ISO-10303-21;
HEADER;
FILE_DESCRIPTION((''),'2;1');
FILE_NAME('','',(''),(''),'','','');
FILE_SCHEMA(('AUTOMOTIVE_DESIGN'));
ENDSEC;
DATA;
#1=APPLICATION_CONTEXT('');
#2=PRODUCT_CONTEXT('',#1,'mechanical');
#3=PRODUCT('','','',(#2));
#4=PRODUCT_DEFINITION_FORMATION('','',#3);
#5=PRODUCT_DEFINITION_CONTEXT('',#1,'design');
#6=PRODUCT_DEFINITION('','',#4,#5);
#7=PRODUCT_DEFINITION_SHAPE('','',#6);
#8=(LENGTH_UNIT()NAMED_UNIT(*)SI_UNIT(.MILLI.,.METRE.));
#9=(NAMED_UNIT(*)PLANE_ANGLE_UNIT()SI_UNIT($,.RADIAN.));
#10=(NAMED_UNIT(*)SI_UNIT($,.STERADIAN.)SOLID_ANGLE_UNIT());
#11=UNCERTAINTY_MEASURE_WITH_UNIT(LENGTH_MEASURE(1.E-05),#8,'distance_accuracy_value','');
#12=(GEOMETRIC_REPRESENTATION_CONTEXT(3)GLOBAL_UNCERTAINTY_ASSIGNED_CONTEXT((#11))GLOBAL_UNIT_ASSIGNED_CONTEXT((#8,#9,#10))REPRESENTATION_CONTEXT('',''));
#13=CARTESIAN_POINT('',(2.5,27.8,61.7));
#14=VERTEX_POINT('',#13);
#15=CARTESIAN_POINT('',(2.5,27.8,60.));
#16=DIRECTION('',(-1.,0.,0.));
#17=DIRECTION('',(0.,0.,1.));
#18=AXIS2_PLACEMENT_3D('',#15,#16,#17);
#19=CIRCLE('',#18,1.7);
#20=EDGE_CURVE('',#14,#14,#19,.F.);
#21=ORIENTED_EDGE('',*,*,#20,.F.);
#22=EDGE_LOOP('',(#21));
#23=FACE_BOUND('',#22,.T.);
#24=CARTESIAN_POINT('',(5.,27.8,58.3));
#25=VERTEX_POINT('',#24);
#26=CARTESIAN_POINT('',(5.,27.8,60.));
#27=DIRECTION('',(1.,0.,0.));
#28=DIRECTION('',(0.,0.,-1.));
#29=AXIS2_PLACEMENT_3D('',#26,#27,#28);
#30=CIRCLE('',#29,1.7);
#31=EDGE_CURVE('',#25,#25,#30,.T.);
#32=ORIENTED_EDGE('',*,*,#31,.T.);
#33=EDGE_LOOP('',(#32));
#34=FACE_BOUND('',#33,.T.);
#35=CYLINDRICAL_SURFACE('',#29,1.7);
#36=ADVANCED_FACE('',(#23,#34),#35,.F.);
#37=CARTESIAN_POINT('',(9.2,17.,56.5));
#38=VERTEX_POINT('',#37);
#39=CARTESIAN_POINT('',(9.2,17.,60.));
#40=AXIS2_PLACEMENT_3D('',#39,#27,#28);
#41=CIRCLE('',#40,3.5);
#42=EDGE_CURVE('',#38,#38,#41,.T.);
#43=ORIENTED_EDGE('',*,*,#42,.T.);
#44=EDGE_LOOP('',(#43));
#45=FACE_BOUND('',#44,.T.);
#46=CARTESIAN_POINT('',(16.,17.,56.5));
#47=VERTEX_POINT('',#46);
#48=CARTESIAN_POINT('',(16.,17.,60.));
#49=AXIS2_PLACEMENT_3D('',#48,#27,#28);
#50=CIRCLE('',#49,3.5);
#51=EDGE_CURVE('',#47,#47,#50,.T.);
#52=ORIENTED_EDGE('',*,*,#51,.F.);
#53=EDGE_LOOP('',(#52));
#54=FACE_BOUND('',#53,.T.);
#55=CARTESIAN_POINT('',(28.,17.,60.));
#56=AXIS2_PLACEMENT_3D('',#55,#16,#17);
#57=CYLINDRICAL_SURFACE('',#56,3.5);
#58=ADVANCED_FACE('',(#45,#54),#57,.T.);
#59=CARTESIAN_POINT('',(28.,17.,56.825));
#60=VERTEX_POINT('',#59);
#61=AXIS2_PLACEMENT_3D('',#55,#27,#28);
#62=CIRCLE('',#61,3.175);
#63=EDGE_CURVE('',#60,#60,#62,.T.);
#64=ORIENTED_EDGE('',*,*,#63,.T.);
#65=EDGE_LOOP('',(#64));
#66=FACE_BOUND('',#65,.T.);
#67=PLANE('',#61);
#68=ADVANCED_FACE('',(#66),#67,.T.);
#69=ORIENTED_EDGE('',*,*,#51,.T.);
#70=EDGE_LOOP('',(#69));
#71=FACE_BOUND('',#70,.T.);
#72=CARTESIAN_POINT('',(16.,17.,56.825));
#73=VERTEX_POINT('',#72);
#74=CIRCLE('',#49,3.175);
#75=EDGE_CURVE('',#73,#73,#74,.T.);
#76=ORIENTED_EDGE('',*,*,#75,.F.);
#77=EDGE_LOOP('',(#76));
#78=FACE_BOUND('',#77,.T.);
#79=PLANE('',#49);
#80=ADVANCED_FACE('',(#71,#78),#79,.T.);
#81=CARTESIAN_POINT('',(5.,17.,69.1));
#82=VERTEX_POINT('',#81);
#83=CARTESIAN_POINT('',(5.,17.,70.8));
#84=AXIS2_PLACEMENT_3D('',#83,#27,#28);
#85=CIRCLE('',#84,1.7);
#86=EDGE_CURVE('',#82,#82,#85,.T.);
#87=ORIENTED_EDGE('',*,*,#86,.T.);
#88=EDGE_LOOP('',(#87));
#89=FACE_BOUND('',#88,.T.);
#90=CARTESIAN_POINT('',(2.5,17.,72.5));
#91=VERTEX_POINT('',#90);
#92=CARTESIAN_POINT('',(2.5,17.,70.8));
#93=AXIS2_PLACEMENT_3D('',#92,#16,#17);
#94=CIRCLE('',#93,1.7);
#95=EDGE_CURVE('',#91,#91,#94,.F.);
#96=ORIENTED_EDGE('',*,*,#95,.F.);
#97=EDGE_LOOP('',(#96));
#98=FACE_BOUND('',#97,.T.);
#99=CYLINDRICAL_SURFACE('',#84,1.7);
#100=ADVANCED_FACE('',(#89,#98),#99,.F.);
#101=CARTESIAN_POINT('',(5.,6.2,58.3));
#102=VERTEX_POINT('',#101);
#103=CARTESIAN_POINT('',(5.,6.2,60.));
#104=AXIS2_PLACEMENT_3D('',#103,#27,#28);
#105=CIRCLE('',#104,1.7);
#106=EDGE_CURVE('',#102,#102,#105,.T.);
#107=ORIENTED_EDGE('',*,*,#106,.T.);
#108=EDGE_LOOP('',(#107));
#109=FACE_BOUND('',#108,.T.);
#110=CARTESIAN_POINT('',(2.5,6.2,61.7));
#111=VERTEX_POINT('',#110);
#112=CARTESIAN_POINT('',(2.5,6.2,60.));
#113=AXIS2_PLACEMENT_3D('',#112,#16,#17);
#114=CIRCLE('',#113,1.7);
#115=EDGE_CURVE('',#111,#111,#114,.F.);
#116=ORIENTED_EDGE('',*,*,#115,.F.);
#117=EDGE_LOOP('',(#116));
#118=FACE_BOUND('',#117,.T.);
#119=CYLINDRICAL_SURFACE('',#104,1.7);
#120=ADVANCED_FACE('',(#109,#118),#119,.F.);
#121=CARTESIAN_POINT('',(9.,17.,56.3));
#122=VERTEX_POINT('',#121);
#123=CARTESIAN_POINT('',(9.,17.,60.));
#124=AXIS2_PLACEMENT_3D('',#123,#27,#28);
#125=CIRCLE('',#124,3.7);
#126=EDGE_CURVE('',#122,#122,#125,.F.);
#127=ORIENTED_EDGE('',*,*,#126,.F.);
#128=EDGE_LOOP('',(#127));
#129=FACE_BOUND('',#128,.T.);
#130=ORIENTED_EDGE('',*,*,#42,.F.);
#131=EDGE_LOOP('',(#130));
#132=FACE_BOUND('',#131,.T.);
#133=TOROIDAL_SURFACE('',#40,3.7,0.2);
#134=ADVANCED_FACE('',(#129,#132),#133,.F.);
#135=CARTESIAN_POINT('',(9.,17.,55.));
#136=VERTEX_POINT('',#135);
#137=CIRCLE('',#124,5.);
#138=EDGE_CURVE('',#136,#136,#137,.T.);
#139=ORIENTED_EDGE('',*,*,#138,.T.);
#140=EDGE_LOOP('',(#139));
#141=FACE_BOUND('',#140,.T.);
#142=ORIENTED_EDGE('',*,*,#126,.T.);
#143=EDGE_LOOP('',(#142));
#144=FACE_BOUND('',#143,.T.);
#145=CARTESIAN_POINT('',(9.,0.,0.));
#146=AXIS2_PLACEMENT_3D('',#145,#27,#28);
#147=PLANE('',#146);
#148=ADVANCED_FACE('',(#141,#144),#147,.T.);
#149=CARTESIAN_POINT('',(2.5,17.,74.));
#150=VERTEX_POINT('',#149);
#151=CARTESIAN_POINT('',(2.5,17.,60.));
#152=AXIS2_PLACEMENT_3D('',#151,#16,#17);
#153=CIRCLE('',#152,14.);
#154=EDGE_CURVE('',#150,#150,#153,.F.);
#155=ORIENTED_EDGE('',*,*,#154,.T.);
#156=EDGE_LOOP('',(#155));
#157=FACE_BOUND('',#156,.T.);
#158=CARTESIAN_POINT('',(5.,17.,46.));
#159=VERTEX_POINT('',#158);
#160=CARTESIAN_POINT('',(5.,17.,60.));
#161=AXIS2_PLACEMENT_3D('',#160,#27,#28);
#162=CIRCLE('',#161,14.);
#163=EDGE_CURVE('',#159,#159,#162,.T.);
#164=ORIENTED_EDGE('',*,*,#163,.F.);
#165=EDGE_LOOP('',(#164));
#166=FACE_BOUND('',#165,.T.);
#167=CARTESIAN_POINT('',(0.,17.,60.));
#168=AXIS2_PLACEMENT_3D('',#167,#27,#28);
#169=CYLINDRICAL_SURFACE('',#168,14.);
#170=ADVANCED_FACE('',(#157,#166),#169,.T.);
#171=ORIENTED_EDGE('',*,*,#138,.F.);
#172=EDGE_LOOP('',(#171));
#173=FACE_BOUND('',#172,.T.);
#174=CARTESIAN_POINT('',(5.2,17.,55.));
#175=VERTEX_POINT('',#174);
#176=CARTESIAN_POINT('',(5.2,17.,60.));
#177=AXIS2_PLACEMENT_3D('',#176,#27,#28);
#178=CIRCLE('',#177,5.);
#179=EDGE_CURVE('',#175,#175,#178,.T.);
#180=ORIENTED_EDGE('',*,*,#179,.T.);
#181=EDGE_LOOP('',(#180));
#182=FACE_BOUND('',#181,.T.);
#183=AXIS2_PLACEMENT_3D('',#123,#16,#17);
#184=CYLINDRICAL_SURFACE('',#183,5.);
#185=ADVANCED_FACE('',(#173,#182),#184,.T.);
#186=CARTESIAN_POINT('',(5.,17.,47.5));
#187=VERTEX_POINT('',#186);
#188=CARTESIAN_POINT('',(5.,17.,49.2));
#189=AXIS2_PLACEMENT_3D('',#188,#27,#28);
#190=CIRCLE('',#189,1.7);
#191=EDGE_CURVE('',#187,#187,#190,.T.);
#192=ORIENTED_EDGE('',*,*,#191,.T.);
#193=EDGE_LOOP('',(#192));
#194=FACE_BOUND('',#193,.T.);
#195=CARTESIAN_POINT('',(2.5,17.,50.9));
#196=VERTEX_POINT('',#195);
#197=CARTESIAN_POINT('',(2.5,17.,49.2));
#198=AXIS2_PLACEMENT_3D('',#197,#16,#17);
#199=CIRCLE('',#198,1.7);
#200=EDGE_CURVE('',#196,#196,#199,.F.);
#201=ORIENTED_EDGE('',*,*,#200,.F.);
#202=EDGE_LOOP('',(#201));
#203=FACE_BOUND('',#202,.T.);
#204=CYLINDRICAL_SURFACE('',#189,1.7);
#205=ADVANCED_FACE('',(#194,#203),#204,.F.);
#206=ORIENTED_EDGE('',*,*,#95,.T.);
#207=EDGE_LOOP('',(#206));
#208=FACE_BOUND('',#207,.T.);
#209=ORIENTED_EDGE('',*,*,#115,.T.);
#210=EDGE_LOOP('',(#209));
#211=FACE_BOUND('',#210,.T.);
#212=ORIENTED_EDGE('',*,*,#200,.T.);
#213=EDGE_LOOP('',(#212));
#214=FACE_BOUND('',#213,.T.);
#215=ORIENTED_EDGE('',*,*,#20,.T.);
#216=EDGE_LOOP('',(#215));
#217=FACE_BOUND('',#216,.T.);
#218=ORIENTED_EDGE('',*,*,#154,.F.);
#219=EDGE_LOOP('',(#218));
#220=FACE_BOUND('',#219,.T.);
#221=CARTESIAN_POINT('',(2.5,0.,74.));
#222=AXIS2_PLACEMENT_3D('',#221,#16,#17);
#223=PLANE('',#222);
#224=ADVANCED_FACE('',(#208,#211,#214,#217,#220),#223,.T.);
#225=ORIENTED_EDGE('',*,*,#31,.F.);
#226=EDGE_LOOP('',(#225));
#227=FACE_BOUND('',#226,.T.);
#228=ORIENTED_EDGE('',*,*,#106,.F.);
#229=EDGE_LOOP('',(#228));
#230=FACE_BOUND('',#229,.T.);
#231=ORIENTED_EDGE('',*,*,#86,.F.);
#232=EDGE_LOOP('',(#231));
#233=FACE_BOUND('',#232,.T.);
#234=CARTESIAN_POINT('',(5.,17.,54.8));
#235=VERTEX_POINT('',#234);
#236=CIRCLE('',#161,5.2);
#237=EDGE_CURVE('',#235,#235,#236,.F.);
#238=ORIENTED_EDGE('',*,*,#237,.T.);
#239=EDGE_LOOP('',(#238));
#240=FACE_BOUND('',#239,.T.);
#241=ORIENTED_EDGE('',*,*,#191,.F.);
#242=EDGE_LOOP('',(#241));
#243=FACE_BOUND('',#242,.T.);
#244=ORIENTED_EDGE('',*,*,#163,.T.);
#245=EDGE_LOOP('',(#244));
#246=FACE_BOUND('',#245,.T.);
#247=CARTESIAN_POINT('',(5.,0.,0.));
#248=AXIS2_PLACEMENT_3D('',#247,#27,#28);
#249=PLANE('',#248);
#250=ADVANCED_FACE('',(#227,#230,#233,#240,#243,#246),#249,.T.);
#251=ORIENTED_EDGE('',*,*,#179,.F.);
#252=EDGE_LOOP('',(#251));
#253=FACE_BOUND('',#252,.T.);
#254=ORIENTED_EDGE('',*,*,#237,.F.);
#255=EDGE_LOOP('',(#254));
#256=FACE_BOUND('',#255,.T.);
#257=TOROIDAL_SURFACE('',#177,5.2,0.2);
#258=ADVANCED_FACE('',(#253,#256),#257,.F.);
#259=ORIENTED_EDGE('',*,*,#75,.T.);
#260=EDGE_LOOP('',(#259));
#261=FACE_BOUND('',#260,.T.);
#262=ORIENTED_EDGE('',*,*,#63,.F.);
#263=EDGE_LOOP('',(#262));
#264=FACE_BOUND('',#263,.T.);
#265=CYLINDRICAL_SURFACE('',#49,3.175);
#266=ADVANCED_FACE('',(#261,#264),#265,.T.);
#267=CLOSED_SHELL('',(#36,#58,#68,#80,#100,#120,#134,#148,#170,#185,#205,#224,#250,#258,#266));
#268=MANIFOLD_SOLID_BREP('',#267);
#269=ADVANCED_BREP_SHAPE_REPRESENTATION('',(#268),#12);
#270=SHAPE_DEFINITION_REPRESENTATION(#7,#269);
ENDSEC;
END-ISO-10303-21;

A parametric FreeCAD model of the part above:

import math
import FreeCAD as App
import Part
import Sketcher


def edges_at(feature, points):
    """Names of the edges that pass closest to the given points."""
    edges = feature.Shape.Edges
    near = lambda p: min(range(len(edges)), key=lambda i: edges[i].distToShape(Part.Vertex(*p))[0])
    return sorted({f"Edge{near(p) + 1}" for p in points})


def add_polygon(sketch, points):
    """Adds a closed chain of lines whose ends are joined by coincident constraints."""
    first, n = sketch.GeometryCount, len(points)
    for a, b in zip(points, points[1:] + points[:1]):
        sketch.addGeometry(Part.LineSegment(App.Vector(*a, 0), App.Vector(*b, 0)), False)
    for i in range(n):
        sketch.addConstraint(Sketcher.Constraint("Coincident", first + i, 2, first + (i + 1) % n, 1))

doc = App.newDocument("Part")
body = doc.addObject("PartDesign::Body", "Body")

# Sketch on YZ plane
sketch1 = body.newObject("Sketcher::SketchObject", "Sketch")
sketch1.AttachmentSupport = (doc.getObject("YZ_Plane"), [""])
sketch1.MapMode = "FlatFace"
add_polygon(sketch1, [(34, 120), (0, 120), (0, 0), (34, 0)])  # lines 0-3
sketch1.addConstraint(Sketcher.Constraint("Horizontal", 0))
sketch1.addConstraint(Sketcher.Constraint("Vertical", 1))
sketch1.addConstraint(Sketcher.Constraint("Horizontal", 2))
sketch1.addConstraint(Sketcher.Constraint("Vertical", 3))
sketch1.addConstraint(Sketcher.Constraint("Coincident", 1, 2, -1, 1))
sketch1.addConstraint(Sketcher.Constraint("DistanceX", 0, 2, 0, 1, 34.0))
sketch1.addConstraint(Sketcher.Constraint("DistanceY", 1, 2, 1, 1, 120.0))
pad1 = body.newObject("PartDesign::Pad", "Pad")
pad1.Profile = sketch1
pad1.Length = 5

# Sketch on YZ plane
sketch2 = body.newObject("Sketcher::SketchObject", "Sketch001")
sketch2.AttachmentSupport = (doc.getObject("YZ_Plane"), [""])
sketch2.MapMode = "FlatFace"
sketch2.AttachmentOffset = App.Placement(App.Vector(0, 0, 5), App.Rotation())
sketch2.addGeometry(Part.ArcOfCircle(Part.Circle(App.Vector(17, 60, 0), App.Vector(0, 0, 1), 5), math.radians(-90), math.radians(0)), False)
sketch2.addGeometry(Part.ArcOfCircle(Part.Circle(App.Vector(17, 60, 0), App.Vector(0, 0, 1), 5), math.radians(0), math.radians(180)), False)
sketch2.addGeometry(Part.ArcOfCircle(Part.Circle(App.Vector(17, 60, 0), App.Vector(0, 0, 1), 5), math.radians(180), math.radians(270)), False)
sketch2.addConstraint(Sketcher.Constraint("Tangent", 0, 2, 1, 1))
sketch2.addConstraint(Sketcher.Constraint("Tangent", 1, 2, 2, 1))
sketch2.addConstraint(Sketcher.Constraint("Tangent", 2, 2, 0, 1))
sketch2.addConstraint(Sketcher.Constraint("Horizontal", 2, 3, 0, 2))
sketch2.addConstraint(Sketcher.Constraint("Horizontal", 0, 2, 1, 2))
sketch2.addConstraint(Sketcher.Constraint("Vertical", 1, 3, 2, 2))
sketch2.addConstraint(Sketcher.Constraint("Radius", 0, 5.0))
sketch2.addConstraint(Sketcher.Constraint("DistanceX", -1, 1, 0, 3, 17.0))
sketch2.addConstraint(Sketcher.Constraint("DistanceY", -1, 1, 0, 3, 60.0))
pad2 = body.newObject("PartDesign::Pad", "Pad001")
pad2.Profile = sketch2
pad2.Length = 4

# Sketch on YZ plane
sketch3 = body.newObject("Sketcher::SketchObject", "Sketch002")
sketch3.AttachmentSupport = (doc.getObject("YZ_Plane"), [""])
sketch3.MapMode = "FlatFace"
sketch3.AttachmentOffset = App.Placement(App.Vector(0, 0, 9), App.Rotation())
sketch3.addGeometry(Part.Circle(App.Vector(17, 60, 0), App.Vector(0, 0, 1), 3.5), False)
sketch3.addConstraint(Sketcher.Constraint("Diameter", 0, 7.0))
sketch3.addConstraint(Sketcher.Constraint("DistanceX", -1, 1, 0, 3, 17.0))
sketch3.addConstraint(Sketcher.Constraint("DistanceY", -1, 1, 0, 3, 60.0))
pad3 = body.newObject("PartDesign::Pad", "Pad002")
pad3.Profile = sketch3
pad3.Length = 19

# Sketch on YZ plane
sketch4 = body.newObject("Sketcher::SketchObject", "Sketch003")
sketch4.AttachmentSupport = (doc.getObject("YZ_Plane"), [""])
sketch4.MapMode = "FlatFace"
sketch4.AttachmentOffset = App.Placement(App.Vector(0, 0, 28), App.Rotation())
sketch4.addGeometry(Part.Circle(App.Vector(17, 60, 0), App.Vector(0, 0, 1), 3.5), False)
sketch4.addGeometry(Part.Circle(App.Vector(17, 60, 0), App.Vector(0, 0, 1), 3.2), False)
sketch4.addConstraint(Sketcher.Constraint("Coincident", 1, 3, 0, 3))
sketch4.addConstraint(Sketcher.Constraint("Diameter", 0, 7.0))
sketch4.addConstraint(Sketcher.Constraint("Diameter", 1, 6.35))
sketch4.addConstraint(Sketcher.Constraint("DistanceX", -1, 1, 0, 3, 17.0))
sketch4.addConstraint(Sketcher.Constraint("DistanceY", -1, 1, 0, 3, 60.0))
pocket1 = body.newObject("PartDesign::Pocket", "Pocket")
pocket1.Profile = sketch4
pocket1.Length = 12
doc.recompute()

fillet = body.newObject("PartDesign::Fillet", "Fillet")
fillet.Base = (pocket1, edges_at(pocket1, [(5, 17, 65), (9, 17, 63.5)]))
fillet.Radius = 0.2

# Sketch on YZ plane
sketch5 = body.newObject("Sketcher::SketchObject", "Sketch004")
sketch5.AttachmentSupport = (doc.getObject("YZ_Plane"), [""])
sketch5.MapMode = "FlatFace"
sketch5.AttachmentOffset = App.Placement(App.Vector(0, 0, 5), App.Rotation())
add_polygon(sketch5, [(34, 120), (0, 120), (0, 0), (34, 0)])  # lines 0-3
sketch5.addGeometry(Part.Circle(App.Vector(17, 60, 0), App.Vector(0, 0, 1), 14), False)  # 4
sketch5.addConstraint(Sketcher.Constraint("Horizontal", 0))
sketch5.addConstraint(Sketcher.Constraint("Vertical", 1))
sketch5.addConstraint(Sketcher.Constraint("Horizontal", 2))
sketch5.addConstraint(Sketcher.Constraint("Vertical", 3))
sketch5.addConstraint(Sketcher.Constraint("Coincident", 1, 2, -1, 1))
sketch5.addConstraint(Sketcher.Constraint("Diameter", 4, 28.0))
sketch5.addConstraint(Sketcher.Constraint("DistanceX", 0, 2, 0, 1, 34.0))
sketch5.addConstraint(Sketcher.Constraint("DistanceY", 1, 2, 1, 1, 120.0))
sketch5.addConstraint(Sketcher.Constraint("DistanceX", -1, 1, 4, 3, 17.0))
sketch5.addConstraint(Sketcher.Constraint("DistanceY", -1, 1, 4, 3, 60.0))
pocket2 = body.newObject("PartDesign::Pocket", "Pocket001")
pocket2.Profile = sketch5
pocket2.Type = "ThroughAll"

# Sketch on YZ plane
sketch6 = body.newObject("Sketcher::SketchObject", "Sketch005")
sketch6.AttachmentSupport = (doc.getObject("YZ_Plane"), [""])
sketch6.MapMode = "FlatFace"
sketch6.AttachmentOffset = App.Placement(App.Vector(0, 0, 5), App.Rotation())
sketch6.addGeometry(Part.Circle(App.Vector(27.8, 60, 0), App.Vector(0, 0, 1), 1.7), False)
sketch6.addGeometry(Part.Circle(App.Vector(17, 49.2, 0), App.Vector(0, 0, 1), 1.7), False)
sketch6.addGeometry(Part.Circle(App.Vector(6.2, 60, 0), App.Vector(0, 0, 1), 1.7), False)
sketch6.addGeometry(Part.Circle(App.Vector(17, 70.8, 0), App.Vector(0, 0, 1), 1.7), False)
sketch6.addConstraint(Sketcher.Constraint("Equal", 0, 1))
sketch6.addConstraint(Sketcher.Constraint("Equal", 1, 2))
sketch6.addConstraint(Sketcher.Constraint("Equal", 2, 3))
sketch6.addConstraint(Sketcher.Constraint("Horizontal", 0, 3, 2, 3))
sketch6.addConstraint(Sketcher.Constraint("Vertical", 1, 3, 3, 3))
sketch6.addConstraint(Sketcher.Constraint("Diameter", 0, 3.4))
sketch6.addConstraint(Sketcher.Constraint("DistanceY", -1, 1, 0, 3, 60.0))
sketch6.addConstraint(Sketcher.Constraint("DistanceX", -1, 1, 1, 3, 17.0))
sketch6.addConstraint(Sketcher.Constraint("DistanceX", -1, 1, 0, 3, 27.8))
sketch6.addConstraint(Sketcher.Constraint("DistanceY", -1, 1, 1, 3, 49.2))
sketch6.addConstraint(Sketcher.Constraint("DistanceX", -1, 1, 2, 3, 6.2))
sketch6.addConstraint(Sketcher.Constraint("DistanceY", -1, 1, 3, 3, 70.8))
doc.recompute()
hole = body.newObject("PartDesign::Hole", "Hole")
hole.Profile = sketch6
hole.ThreadType = "None"
hole.Diameter = 3.4
hole.DepthType = "Dimension"
hole.Depth = 15
hole.DrillPoint = "Angled"
hole.DrillPointAngle = 118

# Sketch on XY plane
sketch7 = body.newObject("Sketcher::SketchObject", "Sketch006")
sketch7.AttachmentSupport = (doc.getObject("XY_Plane"), [""])
sketch7.MapMode = "FlatFace"
sketch7.AttachmentOffset = App.Placement(App.Vector(0, 0, 46), App.Rotation())
add_polygon(sketch7, [(2.5, 31), (2.5, 3), (0, 3), (0, 31)])  # lines 0-3
sketch7.addConstraint(Sketcher.Constraint("Vertical", 0))
sketch7.addConstraint(Sketcher.Constraint("Horizontal", 1))
sketch7.addConstraint(Sketcher.Constraint("Vertical", 2))
sketch7.addConstraint(Sketcher.Constraint("Horizontal", 3))
sketch7.addConstraint(Sketcher.Constraint("PointOnObject", 1, 2, -2))
sketch7.addConstraint(Sketcher.Constraint("DistanceY", 0, 2, 0, 1, 28.0))
sketch7.addConstraint(Sketcher.Constraint("DistanceX", 1, 2, 1, 1, 2.5))
sketch7.addConstraint(Sketcher.Constraint("DistanceY", -1, 1, 0, 2, 3.0))
pocket3 = body.newObject("PartDesign::Pocket", "Pocket002")
pocket3.Profile = sketch7
pocket3.Type = "ThroughAll"
pocket3.Reversed = True

doc.recompute()
